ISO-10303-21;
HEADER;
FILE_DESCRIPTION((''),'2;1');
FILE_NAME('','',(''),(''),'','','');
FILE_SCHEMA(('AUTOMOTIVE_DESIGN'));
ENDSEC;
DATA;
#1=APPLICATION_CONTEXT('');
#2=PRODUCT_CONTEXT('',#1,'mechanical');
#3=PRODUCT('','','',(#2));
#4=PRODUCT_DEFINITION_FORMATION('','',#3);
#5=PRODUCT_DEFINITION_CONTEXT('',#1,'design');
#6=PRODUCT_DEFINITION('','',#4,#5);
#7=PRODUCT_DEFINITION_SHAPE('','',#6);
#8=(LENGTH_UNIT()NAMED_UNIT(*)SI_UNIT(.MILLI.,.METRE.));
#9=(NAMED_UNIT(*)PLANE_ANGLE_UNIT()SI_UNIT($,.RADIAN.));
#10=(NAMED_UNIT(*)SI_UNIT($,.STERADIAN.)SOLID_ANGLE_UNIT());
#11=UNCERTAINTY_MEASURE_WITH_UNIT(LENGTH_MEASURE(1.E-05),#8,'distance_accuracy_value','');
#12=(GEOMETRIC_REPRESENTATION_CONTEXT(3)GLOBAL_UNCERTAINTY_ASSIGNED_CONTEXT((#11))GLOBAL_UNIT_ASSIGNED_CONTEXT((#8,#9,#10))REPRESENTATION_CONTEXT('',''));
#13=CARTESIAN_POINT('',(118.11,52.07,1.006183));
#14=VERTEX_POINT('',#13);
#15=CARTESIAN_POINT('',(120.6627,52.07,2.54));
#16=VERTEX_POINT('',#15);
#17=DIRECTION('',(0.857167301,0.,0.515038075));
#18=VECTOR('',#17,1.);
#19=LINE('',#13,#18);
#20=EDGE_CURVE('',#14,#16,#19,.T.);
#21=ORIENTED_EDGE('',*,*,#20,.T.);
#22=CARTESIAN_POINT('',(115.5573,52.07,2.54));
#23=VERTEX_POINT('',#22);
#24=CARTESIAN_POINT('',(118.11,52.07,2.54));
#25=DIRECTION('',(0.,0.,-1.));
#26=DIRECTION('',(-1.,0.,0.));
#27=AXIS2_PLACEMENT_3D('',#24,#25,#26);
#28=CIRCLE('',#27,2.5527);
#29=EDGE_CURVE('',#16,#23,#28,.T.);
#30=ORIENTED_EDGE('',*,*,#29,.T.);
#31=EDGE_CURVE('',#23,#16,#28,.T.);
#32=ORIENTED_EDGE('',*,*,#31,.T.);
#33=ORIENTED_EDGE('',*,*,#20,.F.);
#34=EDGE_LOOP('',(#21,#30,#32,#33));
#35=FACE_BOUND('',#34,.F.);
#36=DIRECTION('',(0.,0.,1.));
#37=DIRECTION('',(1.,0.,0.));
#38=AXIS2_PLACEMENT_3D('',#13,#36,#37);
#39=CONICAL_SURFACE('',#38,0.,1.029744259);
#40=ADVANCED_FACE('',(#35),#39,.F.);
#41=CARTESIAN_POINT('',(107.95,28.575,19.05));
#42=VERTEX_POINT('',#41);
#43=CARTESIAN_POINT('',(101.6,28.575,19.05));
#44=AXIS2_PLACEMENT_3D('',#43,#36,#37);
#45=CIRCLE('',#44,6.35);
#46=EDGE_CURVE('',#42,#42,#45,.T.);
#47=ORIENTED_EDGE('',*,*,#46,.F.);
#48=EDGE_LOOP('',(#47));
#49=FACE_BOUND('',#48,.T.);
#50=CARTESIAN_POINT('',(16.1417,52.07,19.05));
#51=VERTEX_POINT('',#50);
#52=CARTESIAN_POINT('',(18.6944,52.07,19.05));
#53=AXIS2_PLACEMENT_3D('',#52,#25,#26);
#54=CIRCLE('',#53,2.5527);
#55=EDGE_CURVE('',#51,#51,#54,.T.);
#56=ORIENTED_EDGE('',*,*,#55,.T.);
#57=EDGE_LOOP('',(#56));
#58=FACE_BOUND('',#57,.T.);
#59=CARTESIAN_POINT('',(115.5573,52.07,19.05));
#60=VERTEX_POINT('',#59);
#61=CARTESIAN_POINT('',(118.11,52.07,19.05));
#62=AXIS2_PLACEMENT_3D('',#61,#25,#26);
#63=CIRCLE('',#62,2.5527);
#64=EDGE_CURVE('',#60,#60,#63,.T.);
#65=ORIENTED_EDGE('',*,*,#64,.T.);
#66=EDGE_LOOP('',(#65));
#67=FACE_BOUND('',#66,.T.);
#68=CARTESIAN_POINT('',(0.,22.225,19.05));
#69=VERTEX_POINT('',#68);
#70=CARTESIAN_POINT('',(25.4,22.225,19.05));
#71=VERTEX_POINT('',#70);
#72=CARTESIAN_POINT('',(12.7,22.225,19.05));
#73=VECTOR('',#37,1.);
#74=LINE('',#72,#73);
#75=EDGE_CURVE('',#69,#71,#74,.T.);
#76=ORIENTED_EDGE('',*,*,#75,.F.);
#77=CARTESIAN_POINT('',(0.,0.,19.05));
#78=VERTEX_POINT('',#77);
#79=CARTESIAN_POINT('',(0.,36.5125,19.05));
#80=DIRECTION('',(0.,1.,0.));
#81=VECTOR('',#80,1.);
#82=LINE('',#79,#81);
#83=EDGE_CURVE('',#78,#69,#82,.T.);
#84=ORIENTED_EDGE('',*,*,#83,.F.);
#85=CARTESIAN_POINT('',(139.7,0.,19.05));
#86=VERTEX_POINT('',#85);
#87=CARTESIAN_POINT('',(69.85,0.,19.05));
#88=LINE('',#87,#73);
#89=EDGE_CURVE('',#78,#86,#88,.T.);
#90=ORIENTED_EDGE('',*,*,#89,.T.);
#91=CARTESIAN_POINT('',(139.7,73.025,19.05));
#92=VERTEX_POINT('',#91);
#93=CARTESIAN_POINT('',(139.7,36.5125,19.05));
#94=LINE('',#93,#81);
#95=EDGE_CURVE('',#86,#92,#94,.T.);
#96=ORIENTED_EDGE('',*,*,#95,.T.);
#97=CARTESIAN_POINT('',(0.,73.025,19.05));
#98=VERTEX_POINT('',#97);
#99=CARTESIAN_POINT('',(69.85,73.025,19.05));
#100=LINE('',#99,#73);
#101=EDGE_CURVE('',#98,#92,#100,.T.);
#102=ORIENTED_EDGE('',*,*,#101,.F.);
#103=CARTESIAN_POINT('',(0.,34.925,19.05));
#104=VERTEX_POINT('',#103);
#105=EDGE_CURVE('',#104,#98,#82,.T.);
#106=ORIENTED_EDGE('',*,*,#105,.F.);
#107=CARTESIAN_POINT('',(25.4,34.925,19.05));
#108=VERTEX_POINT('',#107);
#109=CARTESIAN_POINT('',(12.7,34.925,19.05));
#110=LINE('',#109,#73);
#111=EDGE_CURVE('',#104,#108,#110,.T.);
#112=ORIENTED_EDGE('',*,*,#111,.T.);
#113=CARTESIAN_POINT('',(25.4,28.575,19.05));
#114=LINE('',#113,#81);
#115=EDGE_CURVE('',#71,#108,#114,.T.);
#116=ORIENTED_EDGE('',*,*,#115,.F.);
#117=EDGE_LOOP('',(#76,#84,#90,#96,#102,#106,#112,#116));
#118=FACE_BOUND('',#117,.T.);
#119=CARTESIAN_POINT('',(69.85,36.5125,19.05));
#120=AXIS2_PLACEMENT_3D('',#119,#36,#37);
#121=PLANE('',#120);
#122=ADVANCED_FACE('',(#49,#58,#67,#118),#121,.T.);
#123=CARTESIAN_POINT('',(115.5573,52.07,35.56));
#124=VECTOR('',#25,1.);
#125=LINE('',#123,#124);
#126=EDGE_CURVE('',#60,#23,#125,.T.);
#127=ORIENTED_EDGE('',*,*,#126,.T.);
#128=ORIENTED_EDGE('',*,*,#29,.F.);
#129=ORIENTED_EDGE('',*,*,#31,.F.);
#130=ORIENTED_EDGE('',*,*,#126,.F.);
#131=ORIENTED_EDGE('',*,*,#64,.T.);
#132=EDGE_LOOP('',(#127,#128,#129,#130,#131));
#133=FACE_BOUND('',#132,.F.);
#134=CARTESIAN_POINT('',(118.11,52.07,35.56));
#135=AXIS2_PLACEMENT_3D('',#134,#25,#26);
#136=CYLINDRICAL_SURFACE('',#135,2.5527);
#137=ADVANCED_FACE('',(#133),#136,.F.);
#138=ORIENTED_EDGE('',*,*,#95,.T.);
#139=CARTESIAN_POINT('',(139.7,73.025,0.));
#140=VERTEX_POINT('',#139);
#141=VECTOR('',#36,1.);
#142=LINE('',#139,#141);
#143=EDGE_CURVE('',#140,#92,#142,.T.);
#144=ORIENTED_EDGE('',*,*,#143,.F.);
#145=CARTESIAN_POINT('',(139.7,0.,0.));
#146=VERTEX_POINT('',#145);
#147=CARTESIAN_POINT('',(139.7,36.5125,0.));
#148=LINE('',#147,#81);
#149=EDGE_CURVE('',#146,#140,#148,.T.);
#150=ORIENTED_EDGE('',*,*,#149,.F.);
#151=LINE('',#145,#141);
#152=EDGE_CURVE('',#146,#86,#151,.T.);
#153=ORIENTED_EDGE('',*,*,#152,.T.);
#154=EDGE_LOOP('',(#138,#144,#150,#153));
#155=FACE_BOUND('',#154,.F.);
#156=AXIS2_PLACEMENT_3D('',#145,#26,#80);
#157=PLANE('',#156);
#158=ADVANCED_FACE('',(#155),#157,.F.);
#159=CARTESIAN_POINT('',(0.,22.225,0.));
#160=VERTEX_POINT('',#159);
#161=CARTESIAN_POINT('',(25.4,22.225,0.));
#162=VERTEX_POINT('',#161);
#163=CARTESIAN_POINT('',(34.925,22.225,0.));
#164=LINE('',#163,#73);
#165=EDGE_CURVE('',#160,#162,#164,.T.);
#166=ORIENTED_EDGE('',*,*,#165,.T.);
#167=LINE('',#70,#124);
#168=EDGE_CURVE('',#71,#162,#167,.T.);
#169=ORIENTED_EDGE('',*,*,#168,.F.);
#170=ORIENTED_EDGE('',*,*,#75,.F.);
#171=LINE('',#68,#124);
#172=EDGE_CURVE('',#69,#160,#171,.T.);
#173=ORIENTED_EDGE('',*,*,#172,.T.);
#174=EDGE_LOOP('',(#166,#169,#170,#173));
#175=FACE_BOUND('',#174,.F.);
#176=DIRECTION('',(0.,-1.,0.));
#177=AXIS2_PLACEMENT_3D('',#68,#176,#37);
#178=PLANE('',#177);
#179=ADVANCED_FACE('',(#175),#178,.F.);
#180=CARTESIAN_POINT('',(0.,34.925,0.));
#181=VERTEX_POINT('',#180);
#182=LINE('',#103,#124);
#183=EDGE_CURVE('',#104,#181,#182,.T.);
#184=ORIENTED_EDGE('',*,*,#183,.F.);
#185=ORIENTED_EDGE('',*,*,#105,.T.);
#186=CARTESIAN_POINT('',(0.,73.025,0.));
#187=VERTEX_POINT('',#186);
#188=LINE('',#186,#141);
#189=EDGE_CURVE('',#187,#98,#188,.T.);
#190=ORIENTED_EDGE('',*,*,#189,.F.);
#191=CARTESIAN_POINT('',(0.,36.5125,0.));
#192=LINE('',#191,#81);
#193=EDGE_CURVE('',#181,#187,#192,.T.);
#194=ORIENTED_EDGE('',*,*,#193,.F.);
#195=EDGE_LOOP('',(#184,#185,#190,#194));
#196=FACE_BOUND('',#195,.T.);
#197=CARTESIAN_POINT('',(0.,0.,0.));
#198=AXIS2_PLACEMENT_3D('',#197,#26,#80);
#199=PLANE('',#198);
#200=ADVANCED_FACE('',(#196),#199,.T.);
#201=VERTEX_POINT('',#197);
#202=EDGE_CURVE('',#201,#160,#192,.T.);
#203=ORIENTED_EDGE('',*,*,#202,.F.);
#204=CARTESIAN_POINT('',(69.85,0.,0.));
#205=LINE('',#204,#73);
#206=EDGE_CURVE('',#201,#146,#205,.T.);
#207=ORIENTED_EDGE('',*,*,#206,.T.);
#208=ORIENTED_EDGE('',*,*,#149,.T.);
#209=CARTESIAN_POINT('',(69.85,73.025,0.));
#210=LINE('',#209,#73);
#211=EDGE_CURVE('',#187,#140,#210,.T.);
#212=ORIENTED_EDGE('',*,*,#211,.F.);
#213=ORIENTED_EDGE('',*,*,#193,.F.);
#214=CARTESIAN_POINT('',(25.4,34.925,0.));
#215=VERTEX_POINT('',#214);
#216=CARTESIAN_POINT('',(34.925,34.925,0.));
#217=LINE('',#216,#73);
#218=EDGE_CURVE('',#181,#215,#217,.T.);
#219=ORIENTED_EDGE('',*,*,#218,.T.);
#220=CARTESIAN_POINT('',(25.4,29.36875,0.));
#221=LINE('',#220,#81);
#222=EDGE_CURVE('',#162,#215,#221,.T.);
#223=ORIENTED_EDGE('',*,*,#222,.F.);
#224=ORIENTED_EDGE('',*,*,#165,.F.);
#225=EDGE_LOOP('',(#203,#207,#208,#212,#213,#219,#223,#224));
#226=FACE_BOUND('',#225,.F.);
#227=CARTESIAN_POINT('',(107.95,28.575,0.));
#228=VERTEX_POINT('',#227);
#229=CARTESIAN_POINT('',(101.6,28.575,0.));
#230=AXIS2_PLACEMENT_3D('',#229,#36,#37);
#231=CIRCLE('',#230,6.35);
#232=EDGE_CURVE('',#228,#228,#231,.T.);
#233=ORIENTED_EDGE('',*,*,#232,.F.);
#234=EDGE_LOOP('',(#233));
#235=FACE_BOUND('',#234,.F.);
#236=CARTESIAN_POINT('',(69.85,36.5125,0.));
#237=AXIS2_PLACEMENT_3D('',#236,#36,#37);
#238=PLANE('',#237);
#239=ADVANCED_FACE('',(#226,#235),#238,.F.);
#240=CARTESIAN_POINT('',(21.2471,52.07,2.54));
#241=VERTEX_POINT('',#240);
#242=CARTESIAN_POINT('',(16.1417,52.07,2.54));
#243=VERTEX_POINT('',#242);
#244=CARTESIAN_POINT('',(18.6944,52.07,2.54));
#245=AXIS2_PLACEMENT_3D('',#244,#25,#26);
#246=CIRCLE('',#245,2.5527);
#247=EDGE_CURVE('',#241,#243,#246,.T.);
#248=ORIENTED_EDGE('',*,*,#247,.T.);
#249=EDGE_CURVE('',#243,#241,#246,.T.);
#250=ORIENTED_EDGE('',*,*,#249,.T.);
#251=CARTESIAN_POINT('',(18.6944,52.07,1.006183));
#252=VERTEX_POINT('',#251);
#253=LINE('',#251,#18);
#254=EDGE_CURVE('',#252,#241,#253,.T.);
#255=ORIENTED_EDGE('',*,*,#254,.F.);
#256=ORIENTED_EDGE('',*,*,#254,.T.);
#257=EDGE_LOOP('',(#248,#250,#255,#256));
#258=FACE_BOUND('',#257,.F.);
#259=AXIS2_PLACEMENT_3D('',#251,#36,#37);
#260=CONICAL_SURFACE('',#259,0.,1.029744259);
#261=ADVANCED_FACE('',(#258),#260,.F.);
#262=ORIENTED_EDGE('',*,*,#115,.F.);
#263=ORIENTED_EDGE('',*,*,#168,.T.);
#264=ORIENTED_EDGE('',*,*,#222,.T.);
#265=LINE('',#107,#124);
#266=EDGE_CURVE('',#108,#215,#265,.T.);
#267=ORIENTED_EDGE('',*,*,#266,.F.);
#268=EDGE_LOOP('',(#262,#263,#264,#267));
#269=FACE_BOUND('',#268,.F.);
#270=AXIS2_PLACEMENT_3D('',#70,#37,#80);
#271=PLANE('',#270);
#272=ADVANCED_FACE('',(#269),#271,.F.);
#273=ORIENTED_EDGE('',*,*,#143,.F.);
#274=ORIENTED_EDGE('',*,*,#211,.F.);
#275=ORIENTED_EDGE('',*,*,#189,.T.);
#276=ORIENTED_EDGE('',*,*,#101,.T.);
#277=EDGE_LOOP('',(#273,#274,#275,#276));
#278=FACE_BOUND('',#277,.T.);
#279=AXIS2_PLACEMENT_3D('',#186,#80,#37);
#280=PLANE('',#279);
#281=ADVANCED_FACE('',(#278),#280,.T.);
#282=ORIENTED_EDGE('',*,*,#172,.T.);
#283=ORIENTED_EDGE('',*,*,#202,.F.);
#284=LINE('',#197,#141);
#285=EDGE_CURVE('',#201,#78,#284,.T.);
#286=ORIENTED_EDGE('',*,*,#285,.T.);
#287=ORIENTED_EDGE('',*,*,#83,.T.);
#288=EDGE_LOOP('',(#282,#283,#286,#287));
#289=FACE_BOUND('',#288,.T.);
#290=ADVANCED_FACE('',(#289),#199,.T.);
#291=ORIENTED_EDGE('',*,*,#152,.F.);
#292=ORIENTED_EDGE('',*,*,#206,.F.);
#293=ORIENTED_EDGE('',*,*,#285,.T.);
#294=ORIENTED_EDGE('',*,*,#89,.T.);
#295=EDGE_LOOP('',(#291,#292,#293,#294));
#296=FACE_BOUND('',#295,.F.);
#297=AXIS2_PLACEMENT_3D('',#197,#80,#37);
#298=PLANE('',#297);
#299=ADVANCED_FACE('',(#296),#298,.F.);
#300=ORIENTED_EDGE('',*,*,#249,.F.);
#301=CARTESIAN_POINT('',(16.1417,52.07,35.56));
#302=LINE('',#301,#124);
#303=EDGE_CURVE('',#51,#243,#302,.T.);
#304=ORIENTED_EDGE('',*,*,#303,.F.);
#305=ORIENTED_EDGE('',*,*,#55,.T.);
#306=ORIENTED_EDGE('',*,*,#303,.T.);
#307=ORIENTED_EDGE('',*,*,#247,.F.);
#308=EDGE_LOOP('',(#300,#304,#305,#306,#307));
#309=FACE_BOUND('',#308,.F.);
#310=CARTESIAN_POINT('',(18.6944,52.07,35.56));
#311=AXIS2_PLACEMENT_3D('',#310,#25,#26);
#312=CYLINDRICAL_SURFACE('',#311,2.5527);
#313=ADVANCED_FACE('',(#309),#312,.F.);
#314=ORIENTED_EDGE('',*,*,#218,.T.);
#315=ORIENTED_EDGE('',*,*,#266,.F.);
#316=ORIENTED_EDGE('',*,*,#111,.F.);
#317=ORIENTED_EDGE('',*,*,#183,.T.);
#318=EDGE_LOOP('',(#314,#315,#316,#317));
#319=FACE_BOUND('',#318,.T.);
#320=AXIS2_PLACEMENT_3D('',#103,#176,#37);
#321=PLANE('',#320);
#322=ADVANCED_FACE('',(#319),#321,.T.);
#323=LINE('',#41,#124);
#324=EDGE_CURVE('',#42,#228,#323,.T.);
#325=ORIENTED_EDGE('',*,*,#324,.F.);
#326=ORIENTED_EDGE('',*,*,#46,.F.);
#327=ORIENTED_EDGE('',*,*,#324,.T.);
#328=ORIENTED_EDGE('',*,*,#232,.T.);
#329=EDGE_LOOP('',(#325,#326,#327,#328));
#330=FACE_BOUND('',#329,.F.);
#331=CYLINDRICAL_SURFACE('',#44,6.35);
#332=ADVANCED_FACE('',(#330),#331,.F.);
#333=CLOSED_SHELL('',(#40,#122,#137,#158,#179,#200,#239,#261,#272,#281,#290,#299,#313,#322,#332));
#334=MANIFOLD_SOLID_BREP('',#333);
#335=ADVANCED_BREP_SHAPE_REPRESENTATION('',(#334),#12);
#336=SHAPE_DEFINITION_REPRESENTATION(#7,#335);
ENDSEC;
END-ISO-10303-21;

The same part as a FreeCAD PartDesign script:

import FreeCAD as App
import Part
import Sketcher

V = App.Vector
Q = App.Units.Quantity

doc = App.newDocument("Part")
body = doc.addObject("PartDesign::Body", "Body")

# Sketch on XY plane
sketch1 = body.newObject("Sketcher::SketchObject", "Sketch")
sketch1.AttachmentSupport = (doc.getObject("XY_Plane"), [""])
sketch1.MapMode = "FlatFace"
sketch1.addGeometry([
    Part.LineSegment(V(0, 73.025, 0), V(0, 0, 0)),
    Part.LineSegment(V(0, 0, 0), V(139.7, 0, 0)),
    Part.LineSegment(V(139.7, 0, 0), V(139.7, 73.025, 0)),
    Part.LineSegment(V(139.7, 73.025, 0), V(0, 73.025, 0)),
], False)
sketch1.addConstraint([
    Sketcher.Constraint("Coincident", 0, 2, 1, 1),
    Sketcher.Constraint("Coincident", 1, 2, 2, 1),
    Sketcher.Constraint("Coincident", 2, 2, 3, 1),
    Sketcher.Constraint("Coincident", 3, 2, 0, 1),
    Sketcher.Constraint("Vertical", 0),
    Sketcher.Constraint("Horizontal", 1),
    Sketcher.Constraint("Vertical", 2),
    Sketcher.Constraint("Horizontal", 3),
    Sketcher.Constraint("Coincident", 0, 2, -1, 1),
    Sketcher.Constraint("DistanceX", 1, 1, 1, 2, Q("5.5 in")),
    Sketcher.Constraint("DistanceY", 0, 2, 0, 1, Q("2.875 in")),
])
pad1 = body.newObject("PartDesign::Pad", "Pad")
pad1.Profile = sketch1
pad1.Length = Q("0.75 in")

# Sketch on XY plane
sketch2 = body.newObject("Sketcher::SketchObject", "Sketch001")
sketch2.AttachmentSupport = (doc.getObject("XY_Plane"), [""])
sketch2.MapMode = "FlatFace"
sketch2.AttachmentOffset = App.Placement(V(0, 0, 0.75 * 25.4), App.Rotation())
sketch2.addGeometry([
    Part.LineSegment(V(0, 34.925, 0), V(0, 22.225, 0)),  # 0
    Part.LineSegment(V(0, 22.225, 0), V(25.4, 22.225, 0)),  # 1
    Part.LineSegment(V(25.4, 22.225, 0), V(25.4, 34.925, 0)),  # 2
    Part.LineSegment(V(25.4, 34.925, 0), V(0, 34.925, 0)),  # 3
    Part.Circle(V(101.6, 28.575, 0), V(0, 0, 1), 6.35),  # 4
], False)
sketch2.addConstraint([
    Sketcher.Constraint("Coincident", 0, 2, 1, 1),
    Sketcher.Constraint("Coincident", 1, 2, 2, 1),
    Sketcher.Constraint("Coincident", 2, 2, 3, 1),
    Sketcher.Constraint("Coincident", 3, 2, 0, 1),
    Sketcher.Constraint("Vertical", 0),
    Sketcher.Constraint("Horizontal", 1),
    Sketcher.Constraint("Vertical", 2),
    Sketcher.Constraint("Horizontal", 3),
    Sketcher.Constraint("PointOnObject", 0, 2, -2),
    Sketcher.Constraint("Diameter", 4, Q("0.5 in")),
    Sketcher.Constraint("DistanceX", 1, 1, 1, 2, Q("1 in")),
    Sketcher.Constraint("DistanceY", 0, 2, 0, 1, Q("0.5 in")),
    Sketcher.Constraint("DistanceX", -1, 1, 4, 3, Q("4 in")),
    Sketcher.Constraint("DistanceY", 0, 2, 4, 3, Q("0.25 in")),
    Sketcher.Constraint("DistanceY", -1, 1, 4, 3, Q("1.125 in")),
])
pocket1 = body.newObject("PartDesign::Pocket", "Pocket")
pocket1.Profile = sketch2
pocket1.Length = Q("1 in")

# Sketch on XY plane
sketch3 = body.newObject("Sketcher::SketchObject", "Sketch002")
sketch3.AttachmentSupport = (doc.getObject("XY_Plane"), [""])
sketch3.MapMode = "FlatFace"
sketch3.AttachmentOffset = App.Placement(V(0, 0, 0.75 * 25.4), App.Rotation())
sketch3.addGeometry([
    Part.Circle(V(18.6944, 52.07, 0), V(0, 0, 1), 2.5527),
    Part.Circle(V(118.11, 52.07, 0), V(0, 0, 1), 2.5527),
], False)
sketch3.addConstraint([
    Sketcher.Constraint("Equal", 0, 1),
    Sketcher.Constraint("Horizontal", 0, 3, 1, 3),
    Sketcher.Constraint("Diameter", 0, Q("0.201 in")),
    Sketcher.Constraint("DistanceY", -1, 1, 0, 3, Q("2.05 in")),
    Sketcher.Constraint("DistanceX", -1, 1, 1, 3, Q("4.65 in")),
    Sketcher.Constraint("DistanceX", -1, 1, 0, 3, Q("0.736 in")),
])
doc.recompute()
hole = body.newObject("PartDesign::Hole", "Hole")
hole.Profile = sketch3
hole.ThreadType = "None"
hole.Diameter = Q("0.201 in")
hole.DepthType = "Dimension"
hole.Depth = Q("0.65 in")
hole.DrillPoint = "Angled"
hole.DrillPointAngle = 118

doc.recompute()
